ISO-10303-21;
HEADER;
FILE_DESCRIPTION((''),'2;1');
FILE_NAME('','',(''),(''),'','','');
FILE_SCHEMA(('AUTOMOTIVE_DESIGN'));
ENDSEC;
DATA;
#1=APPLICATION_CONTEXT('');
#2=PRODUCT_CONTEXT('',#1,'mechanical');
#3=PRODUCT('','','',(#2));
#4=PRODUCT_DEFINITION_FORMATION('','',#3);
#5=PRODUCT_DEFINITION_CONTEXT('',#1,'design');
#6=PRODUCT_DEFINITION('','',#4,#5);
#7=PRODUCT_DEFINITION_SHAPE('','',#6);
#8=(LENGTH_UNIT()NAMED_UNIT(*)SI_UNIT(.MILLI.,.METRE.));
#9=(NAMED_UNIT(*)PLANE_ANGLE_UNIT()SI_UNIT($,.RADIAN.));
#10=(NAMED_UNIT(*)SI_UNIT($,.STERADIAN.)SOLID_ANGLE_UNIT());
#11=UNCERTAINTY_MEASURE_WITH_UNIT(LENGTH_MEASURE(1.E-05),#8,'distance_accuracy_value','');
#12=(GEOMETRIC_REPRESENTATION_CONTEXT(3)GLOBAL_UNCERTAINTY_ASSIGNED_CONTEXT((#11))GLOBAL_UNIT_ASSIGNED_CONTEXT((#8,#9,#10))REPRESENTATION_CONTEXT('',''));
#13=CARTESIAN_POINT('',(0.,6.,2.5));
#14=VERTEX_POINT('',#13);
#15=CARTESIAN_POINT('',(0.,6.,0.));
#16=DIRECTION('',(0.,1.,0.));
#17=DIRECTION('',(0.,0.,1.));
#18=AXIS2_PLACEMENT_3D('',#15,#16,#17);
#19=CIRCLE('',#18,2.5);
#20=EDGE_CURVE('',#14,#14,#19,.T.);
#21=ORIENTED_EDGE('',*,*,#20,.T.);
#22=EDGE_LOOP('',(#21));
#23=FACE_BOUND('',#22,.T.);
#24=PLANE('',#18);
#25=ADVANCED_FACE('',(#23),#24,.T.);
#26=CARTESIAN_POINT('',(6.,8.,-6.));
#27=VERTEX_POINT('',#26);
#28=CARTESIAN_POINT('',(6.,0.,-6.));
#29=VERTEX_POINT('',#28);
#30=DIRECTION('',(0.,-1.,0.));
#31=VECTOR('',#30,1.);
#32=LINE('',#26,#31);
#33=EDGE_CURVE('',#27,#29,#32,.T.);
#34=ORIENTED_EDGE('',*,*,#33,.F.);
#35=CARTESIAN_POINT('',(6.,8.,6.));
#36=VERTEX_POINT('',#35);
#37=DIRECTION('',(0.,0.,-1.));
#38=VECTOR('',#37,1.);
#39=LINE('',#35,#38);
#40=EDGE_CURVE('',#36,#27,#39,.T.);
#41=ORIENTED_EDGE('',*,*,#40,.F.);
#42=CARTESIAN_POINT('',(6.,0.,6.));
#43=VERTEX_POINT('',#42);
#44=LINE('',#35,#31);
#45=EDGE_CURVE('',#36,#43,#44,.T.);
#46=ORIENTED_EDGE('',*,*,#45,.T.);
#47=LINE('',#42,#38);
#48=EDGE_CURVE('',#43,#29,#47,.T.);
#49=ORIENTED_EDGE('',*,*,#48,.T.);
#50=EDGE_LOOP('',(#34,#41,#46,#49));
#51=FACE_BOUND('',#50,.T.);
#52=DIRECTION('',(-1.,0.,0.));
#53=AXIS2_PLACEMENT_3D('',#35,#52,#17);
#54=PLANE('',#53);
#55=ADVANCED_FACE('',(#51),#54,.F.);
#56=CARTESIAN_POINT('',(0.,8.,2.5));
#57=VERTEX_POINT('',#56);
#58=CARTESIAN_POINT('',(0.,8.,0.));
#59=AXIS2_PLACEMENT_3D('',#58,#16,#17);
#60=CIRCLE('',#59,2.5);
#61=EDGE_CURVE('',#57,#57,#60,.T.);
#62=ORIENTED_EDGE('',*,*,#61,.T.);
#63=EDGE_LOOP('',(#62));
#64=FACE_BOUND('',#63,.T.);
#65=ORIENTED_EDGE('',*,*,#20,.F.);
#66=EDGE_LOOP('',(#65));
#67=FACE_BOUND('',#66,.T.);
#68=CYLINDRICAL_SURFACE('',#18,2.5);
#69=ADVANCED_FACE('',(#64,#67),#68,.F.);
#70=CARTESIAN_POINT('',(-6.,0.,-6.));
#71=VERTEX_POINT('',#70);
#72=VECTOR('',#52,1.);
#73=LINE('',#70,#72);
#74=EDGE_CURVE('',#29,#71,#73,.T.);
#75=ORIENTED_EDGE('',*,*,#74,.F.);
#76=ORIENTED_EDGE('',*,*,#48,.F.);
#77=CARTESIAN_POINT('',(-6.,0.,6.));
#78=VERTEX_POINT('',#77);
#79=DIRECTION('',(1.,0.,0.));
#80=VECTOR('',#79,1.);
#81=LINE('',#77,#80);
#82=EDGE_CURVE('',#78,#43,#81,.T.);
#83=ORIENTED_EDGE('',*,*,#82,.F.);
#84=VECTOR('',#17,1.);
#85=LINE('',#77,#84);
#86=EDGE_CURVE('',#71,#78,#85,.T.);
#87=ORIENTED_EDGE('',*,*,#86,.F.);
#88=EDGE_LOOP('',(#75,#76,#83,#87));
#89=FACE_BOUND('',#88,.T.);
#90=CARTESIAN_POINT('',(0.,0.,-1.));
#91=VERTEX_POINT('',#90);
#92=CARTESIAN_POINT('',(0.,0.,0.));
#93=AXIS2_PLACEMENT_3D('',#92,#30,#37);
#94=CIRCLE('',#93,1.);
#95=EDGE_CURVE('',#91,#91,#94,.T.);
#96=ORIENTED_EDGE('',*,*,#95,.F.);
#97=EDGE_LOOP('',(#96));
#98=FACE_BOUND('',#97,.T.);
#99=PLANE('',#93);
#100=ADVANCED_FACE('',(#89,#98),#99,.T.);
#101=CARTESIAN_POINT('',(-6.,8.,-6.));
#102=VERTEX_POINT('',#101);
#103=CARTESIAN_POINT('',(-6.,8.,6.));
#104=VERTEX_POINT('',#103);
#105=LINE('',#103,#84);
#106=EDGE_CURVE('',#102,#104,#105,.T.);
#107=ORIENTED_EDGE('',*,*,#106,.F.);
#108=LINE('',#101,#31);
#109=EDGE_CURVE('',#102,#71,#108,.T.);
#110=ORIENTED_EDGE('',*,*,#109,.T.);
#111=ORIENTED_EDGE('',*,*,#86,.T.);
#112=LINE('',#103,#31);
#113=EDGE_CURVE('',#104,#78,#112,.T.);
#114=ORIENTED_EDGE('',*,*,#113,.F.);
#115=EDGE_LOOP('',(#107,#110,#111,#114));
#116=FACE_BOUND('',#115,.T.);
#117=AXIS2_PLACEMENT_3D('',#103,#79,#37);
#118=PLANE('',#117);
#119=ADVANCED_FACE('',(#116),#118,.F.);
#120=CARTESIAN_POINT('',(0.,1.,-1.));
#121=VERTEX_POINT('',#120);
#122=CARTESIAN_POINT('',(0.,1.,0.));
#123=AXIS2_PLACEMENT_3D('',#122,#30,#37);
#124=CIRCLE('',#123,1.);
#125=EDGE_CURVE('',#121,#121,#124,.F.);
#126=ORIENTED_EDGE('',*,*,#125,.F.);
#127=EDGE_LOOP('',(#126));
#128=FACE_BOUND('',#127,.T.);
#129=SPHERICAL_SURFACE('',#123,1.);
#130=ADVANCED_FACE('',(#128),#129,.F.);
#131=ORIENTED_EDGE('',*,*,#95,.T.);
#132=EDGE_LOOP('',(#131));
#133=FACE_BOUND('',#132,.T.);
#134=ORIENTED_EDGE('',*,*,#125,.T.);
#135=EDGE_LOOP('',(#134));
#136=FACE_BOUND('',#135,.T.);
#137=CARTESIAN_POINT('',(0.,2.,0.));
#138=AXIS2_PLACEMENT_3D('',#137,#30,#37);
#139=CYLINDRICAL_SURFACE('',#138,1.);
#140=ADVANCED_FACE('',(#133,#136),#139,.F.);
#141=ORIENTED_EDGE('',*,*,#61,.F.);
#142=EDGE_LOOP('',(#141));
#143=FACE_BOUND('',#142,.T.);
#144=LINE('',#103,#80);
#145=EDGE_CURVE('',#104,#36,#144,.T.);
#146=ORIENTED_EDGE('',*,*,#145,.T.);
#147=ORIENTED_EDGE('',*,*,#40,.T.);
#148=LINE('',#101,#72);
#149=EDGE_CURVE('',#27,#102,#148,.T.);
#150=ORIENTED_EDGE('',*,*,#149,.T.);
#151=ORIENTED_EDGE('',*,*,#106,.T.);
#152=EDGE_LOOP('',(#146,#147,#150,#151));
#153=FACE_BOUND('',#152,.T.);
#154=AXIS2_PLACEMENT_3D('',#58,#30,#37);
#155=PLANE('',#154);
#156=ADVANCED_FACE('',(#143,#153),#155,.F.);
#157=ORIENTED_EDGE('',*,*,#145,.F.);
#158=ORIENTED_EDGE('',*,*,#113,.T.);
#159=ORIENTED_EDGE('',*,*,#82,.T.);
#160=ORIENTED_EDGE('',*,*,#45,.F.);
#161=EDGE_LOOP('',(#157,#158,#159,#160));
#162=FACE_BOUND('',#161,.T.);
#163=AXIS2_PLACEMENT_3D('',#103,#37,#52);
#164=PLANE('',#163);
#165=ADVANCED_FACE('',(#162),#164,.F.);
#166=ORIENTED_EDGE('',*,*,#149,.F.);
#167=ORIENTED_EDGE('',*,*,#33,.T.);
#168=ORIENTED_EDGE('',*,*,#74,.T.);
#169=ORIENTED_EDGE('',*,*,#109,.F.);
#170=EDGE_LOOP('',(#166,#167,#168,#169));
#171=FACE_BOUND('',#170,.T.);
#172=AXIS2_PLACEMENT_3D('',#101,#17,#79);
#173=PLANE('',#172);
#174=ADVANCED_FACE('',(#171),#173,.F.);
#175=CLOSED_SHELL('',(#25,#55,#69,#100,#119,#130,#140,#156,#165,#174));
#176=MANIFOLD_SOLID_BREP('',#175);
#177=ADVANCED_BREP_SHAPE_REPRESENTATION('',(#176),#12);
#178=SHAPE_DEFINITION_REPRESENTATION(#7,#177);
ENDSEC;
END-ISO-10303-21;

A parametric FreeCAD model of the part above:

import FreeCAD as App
import Part
import Sketcher
from FreeCAD import Vector


def edges_at(feature, points):
    """Names of the edges that pass closest to the given points."""
    edges = feature.Shape.Edges
    near = lambda p: min(range(len(edges)), key=lambda i: edges[i].distToShape(Part.Vertex(*p))[0])
    return sorted({f"Edge{near(p) + 1}" for p in points})


def add_polygon(sketch, points):
    """Adds a closed chain of lines whose ends are joined by coincident constraints."""
    first, n = sketch.GeometryCount, len(points)
    for a, b in zip(points, points[1:] + points[:1]):
        sketch.addGeometry(Part.LineSegment(App.Vector(*a, 0), App.Vector(*b, 0)), False)
    for i in range(n):
        sketch.addConstraint(Sketcher.Constraint("Coincident", first + i, 2, first + (i + 1) % n, 1))

doc = App.newDocument("Part")
params = doc.addObject("Spreadsheet::Sheet", "Params")
for row, (alias, value) in enumerate([
    ("sketch1_width", "12 mm"),
    ("pad1_length", "8 mm"),
    ("sketch2_diameter", "5 mm"),
    ("pocket1_length", "2 mm"),
    ("sketch3_diameter", "2 mm"),
    ("pocket2_length", "2 mm"),
    ("fillet_radius", "1 mm"),
], start=1):
    params.set(f"A{row}", alias)
    params.set(f"B{row}", "=" + value)
    params.setAlias(f"B{row}", alias)

body = doc.addObject("PartDesign::Body", "Body")

# Sketch on XZ plane
sketch1 = body.newObject("Sketcher::SketchObject", "Sketch")
sketch1.AttachmentSupport = (doc.getObject("XZ_Plane"), [""])
sketch1.MapMode = "FlatFace"
add_polygon(sketch1, [(-6, -6), (-6, 6), (6, 6), (6, -6)])  # lines 0-3
sketch1.addConstraint([
    Sketcher.Constraint("Vertical", 0),
    Sketcher.Constraint("Horizontal", 1),
    Sketcher.Constraint("Vertical", 2),
    Sketcher.Constraint("Horizontal", 3),
    Sketcher.Constraint("Symmetric", 0, 2, 2, 2, -1, 1),
    Sketcher.Constraint("Equal", 3, 0),
    Sketcher.Constraint("DistanceX", 1, 1, 1, 2, 12.0),
])
sketch1.setExpression("Constraints[10]", "Params.sketch1_width")
pad1 = body.newObject("PartDesign::Pad", "Pad")
pad1.Profile = sketch1
pad1.setExpression("Length", "Params.pad1_length")
pad1.Reversed = True

# Sketch on XZ plane
sketch2 = body.newObject("Sketcher::SketchObject", "Sketch001")
sketch2.AttachmentSupport = (doc.getObject("XZ_Plane"), [""])
sketch2.MapMode = "FlatFace"
sketch2.AttachmentOffset = App.Placement(Vector(0, 0, -8), App.Rotation())
sketch2.addGeometry(Part.Circle(Vector(0, 0, 0), Vector(0, 0, 1), 2.5), False)
sketch2.addConstraint([
    Sketcher.Constraint("Coincident", 0, 3, -1, 1),
    Sketcher.Constraint("Diameter", 0, 5.0),
])
sketch2.setExpression("Constraints[1]", "Params.sketch2_diameter")
pocket1 = body.newObject("PartDesign::Pocket", "Pocket")
pocket1.Profile = sketch2
pocket1.setExpression("Length", "Params.pocket1_length")
pocket1.Reversed = True

# Sketch on XZ plane
sketch3 = body.newObject("Sketcher::SketchObject", "Sketch002")
sketch3.AttachmentSupport = (doc.getObject("XZ_Plane"), [""])
sketch3.MapMode = "FlatFace"
sketch3.addGeometry(Part.Circle(Vector(0, 0, 0), Vector(0, 0, 1), 1), False)
sketch3.addConstraint([
    Sketcher.Constraint("Coincident", 0, 3, -1, 1),
    Sketcher.Constraint("Diameter", 0, 2.0),
])
sketch3.setExpression("Constraints[1]", "Params.sketch3_diameter")
pocket2 = body.newObject("PartDesign::Pocket", "Pocket001")
pocket2.Profile = sketch3
pocket2.setExpression("Length", "Params.pocket2_length")
doc.recompute()

fillet = body.newObject("PartDesign::Fillet", "Fillet")
fillet.Base = (pocket2, edges_at(pocket2, [(-1, 2, 0)]))
fillet.setExpression("Radius", "Params.fillet_radius")

doc.recompute()
